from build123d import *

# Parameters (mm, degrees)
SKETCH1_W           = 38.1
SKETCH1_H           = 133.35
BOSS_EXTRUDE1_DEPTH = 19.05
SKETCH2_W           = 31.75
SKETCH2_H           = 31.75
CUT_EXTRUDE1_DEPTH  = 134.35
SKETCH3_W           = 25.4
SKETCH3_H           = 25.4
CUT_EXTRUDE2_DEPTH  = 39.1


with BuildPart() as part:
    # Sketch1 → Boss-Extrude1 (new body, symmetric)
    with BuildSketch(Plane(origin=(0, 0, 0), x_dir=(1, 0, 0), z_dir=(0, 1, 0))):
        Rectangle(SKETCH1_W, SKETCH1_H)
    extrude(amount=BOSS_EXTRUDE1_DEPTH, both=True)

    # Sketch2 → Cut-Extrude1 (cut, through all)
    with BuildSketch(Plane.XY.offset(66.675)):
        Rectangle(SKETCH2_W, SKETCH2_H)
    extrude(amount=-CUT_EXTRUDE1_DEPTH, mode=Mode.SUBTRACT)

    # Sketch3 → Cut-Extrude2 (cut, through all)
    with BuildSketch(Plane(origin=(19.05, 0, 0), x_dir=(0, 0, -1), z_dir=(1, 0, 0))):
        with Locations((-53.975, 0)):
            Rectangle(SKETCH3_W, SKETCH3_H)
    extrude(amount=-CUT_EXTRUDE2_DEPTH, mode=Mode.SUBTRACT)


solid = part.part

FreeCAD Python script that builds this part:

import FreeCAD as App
import Part
import Sketcher
Q = App.Units.Quantity

doc = App.newDocument("Part")
body = doc.addObject("PartDesign::Body", "Body")

# Sketch on XZ plane
sketch1 = doc.addObject("Sketcher::SketchObject", "Sketch")
body.addObject(sketch1)
sketch1.AttachmentSupport = (doc.XZ_Plane, [""])
sketch1.MapMode = "FlatFace"
sketch1.addGeometry(Part.LineSegment(App.Vector(-19, -67, 0), App.Vector(-19, 67, 0)), False)
sketch1.addGeometry(Part.LineSegment(App.Vector(-19, 67, 0), App.Vector(19, 67, 0)), False)
sketch1.addGeometry(Part.LineSegment(App.Vector(19, 67, 0), App.Vector(19, -67, 0)), False)
sketch1.addGeometry(Part.LineSegment(App.Vector(19, -67, 0), App.Vector(-19, -67, 0)), False)
sketch1.addConstraint(Sketcher.Constraint("Coincident", 0, 2, 1, 1))
sketch1.addConstraint(Sketcher.Constraint("Coincident", 1, 2, 2, 1))
sketch1.addConstraint(Sketcher.Constraint("Coincident", 2, 2, 3, 1))
sketch1.addConstraint(Sketcher.Constraint("Coincident", 3, 2, 0, 1))
sketch1.addConstraint(Sketcher.Constraint("Vertical", 0))
sketch1.addConstraint(Sketcher.Constraint("Horizontal", 1))
sketch1.addConstraint(Sketcher.Constraint("Vertical", 2))
sketch1.addConstraint(Sketcher.Constraint("Horizontal", 3))
sketch1.addConstraint(Sketcher.Constraint("Symmetric", 0, 2, 2, 2, -1, 1))
sketch1.addConstraint(Sketcher.Constraint("DistanceX", 1, 1, 1, 2, Q("1.5 in")))
sketch1.addConstraint(Sketcher.Constraint("DistanceY", 0, 1, 0, 2, Q("5.25 in")))
pad1 = doc.addObject("PartDesign::Pad", "Pad")
body.addObject(pad1)
pad1.Profile = sketch1
pad1.Length = Q("1.5 in")
pad1.Midplane = True

# Sketch on XY plane
sketch2 = doc.addObject("Sketcher::SketchObject", "Sketch001")
body.addObject(sketch2)
sketch2.AttachmentSupport = (doc.XY_Plane, [""])
sketch2.MapMode = "FlatFace"
sketch2.AttachmentOffset = App.Placement(App.Vector(0, 0, 2.625 * 25.4), App.Rotation())
sketch2.addGeometry(Part.LineSegment(App.Vector(-16, 16, 0), App.Vector(-16, -16, 0)), False)
sketch2.addGeometry(Part.LineSegment(App.Vector(-16, -16, 0), App.Vector(16, -16, 0)), False)
sketch2.addGeometry(Part.LineSegment(App.Vector(16, -16, 0), App.Vector(16, 16, 0)), False)
sketch2.addGeometry(Part.LineSegment(App.Vector(16, 16, 0), App.Vector(-16, 16, 0)), False)
sketch2.addConstraint(Sketcher.Constraint("Coincident", 0, 2, 1, 1))
sketch2.addConstraint(Sketcher.Constraint("Coincident", 1, 2, 2, 1))
sketch2.addConstraint(Sketcher.Constraint("Coincident", 2, 2, 3, 1))
sketch2.addConstraint(Sketcher.Constraint("Coincident", 3, 2, 0, 1))
sketch2.addConstraint(Sketcher.Constraint("Vertical", 0))
sketch2.addConstraint(Sketcher.Constraint("Horizontal", 1))
sketch2.addConstraint(Sketcher.Constraint("Vertical", 2))
sketch2.addConstraint(Sketcher.Constraint("Horizontal", 3))
sketch2.addConstraint(Sketcher.Constraint("Symmetric", 0, 2, 2, 2, -1, 1))
sketch2.addConstraint(Sketcher.Constraint("Equal", 3, 0))
sketch2.addConstraint(Sketcher.Constraint("DistanceX", 1, 1, 1, 2, Q("1.25 in")))
pocket1 = doc.addObject("PartDesign::Pocket", "Pocket")
body.addObject(pocket1)
pocket1.Profile = sketch2
pocket1.Type = "ThroughAll"

# Sketch on YZ plane
sketch3 = doc.addObject("Sketcher::SketchObject", "Sketch002")
body.addObject(sketch3)
sketch3.AttachmentSupport = (doc.YZ_Plane, [""])
sketch3.MapMode = "FlatFace"
sketch3.AttachmentOffset = App.Placement(App.Vector(0, 0, 0.75 * 25.4), App.Rotation())
sketch3.addGeometry(Part.LineSegment(App.Vector(13, 67, 0), App.Vector(-13, 67, 0)), False)
sketch3.addGeometry(Part.LineSegment(App.Vector(-13, 67, 0), App.Vector(-13, 41, 0)), False)
sketch3.addGeometry(Part.LineSegment(App.Vector(-13, 41, 0), App.Vector(13, 41, 0)), False)
sketch3.addGeometry(Part.LineSegment(App.Vector(13, 41, 0), App.Vector(13, 67, 0)), False)
sketch3.addConstraint(Sketcher.Constraint("Coincident", 0, 2, 1, 1))
sketch3.addConstraint(Sketcher.Constraint("Coincident", 1, 2, 2, 1))
sketch3.addConstraint(Sketcher.Constraint("Coincident", 2, 2, 3, 1))
sketch3.addConstraint(Sketcher.Constraint("Coincident", 3, 2, 0, 1))
sketch3.addConstraint(Sketcher.Constraint("Horizontal", 0))
sketch3.addConstraint(Sketcher.Constraint("Vertical", 1))
sketch3.addConstraint(Sketcher.Constraint("Horizontal", 2))
sketch3.addConstraint(Sketcher.Constraint("Vertical", 3))
sketch3.addConstraint(Sketcher.Constraint("Equal", 2, 1))
sketch3.addConstraint(Sketcher.Constraint("DistanceX", 0, 2, 0, 1, Q("1 in")))
sketch3.addConstraint(Sketcher.Constraint("DistanceX", 0, 2, -1, 1, Q("0.5 in")))
sketch3.addConstraint(Sketcher.Constraint("DistanceY", -1, 1, 0, 2, Q("2.625 in")))
pocket2 = doc.addObject("PartDesign::Pocket", "Pocket001")
body.addObject(pocket2)
pocket2.Profile = sketch3
pocket2.Type = "ThroughAll"

doc.recompute()
